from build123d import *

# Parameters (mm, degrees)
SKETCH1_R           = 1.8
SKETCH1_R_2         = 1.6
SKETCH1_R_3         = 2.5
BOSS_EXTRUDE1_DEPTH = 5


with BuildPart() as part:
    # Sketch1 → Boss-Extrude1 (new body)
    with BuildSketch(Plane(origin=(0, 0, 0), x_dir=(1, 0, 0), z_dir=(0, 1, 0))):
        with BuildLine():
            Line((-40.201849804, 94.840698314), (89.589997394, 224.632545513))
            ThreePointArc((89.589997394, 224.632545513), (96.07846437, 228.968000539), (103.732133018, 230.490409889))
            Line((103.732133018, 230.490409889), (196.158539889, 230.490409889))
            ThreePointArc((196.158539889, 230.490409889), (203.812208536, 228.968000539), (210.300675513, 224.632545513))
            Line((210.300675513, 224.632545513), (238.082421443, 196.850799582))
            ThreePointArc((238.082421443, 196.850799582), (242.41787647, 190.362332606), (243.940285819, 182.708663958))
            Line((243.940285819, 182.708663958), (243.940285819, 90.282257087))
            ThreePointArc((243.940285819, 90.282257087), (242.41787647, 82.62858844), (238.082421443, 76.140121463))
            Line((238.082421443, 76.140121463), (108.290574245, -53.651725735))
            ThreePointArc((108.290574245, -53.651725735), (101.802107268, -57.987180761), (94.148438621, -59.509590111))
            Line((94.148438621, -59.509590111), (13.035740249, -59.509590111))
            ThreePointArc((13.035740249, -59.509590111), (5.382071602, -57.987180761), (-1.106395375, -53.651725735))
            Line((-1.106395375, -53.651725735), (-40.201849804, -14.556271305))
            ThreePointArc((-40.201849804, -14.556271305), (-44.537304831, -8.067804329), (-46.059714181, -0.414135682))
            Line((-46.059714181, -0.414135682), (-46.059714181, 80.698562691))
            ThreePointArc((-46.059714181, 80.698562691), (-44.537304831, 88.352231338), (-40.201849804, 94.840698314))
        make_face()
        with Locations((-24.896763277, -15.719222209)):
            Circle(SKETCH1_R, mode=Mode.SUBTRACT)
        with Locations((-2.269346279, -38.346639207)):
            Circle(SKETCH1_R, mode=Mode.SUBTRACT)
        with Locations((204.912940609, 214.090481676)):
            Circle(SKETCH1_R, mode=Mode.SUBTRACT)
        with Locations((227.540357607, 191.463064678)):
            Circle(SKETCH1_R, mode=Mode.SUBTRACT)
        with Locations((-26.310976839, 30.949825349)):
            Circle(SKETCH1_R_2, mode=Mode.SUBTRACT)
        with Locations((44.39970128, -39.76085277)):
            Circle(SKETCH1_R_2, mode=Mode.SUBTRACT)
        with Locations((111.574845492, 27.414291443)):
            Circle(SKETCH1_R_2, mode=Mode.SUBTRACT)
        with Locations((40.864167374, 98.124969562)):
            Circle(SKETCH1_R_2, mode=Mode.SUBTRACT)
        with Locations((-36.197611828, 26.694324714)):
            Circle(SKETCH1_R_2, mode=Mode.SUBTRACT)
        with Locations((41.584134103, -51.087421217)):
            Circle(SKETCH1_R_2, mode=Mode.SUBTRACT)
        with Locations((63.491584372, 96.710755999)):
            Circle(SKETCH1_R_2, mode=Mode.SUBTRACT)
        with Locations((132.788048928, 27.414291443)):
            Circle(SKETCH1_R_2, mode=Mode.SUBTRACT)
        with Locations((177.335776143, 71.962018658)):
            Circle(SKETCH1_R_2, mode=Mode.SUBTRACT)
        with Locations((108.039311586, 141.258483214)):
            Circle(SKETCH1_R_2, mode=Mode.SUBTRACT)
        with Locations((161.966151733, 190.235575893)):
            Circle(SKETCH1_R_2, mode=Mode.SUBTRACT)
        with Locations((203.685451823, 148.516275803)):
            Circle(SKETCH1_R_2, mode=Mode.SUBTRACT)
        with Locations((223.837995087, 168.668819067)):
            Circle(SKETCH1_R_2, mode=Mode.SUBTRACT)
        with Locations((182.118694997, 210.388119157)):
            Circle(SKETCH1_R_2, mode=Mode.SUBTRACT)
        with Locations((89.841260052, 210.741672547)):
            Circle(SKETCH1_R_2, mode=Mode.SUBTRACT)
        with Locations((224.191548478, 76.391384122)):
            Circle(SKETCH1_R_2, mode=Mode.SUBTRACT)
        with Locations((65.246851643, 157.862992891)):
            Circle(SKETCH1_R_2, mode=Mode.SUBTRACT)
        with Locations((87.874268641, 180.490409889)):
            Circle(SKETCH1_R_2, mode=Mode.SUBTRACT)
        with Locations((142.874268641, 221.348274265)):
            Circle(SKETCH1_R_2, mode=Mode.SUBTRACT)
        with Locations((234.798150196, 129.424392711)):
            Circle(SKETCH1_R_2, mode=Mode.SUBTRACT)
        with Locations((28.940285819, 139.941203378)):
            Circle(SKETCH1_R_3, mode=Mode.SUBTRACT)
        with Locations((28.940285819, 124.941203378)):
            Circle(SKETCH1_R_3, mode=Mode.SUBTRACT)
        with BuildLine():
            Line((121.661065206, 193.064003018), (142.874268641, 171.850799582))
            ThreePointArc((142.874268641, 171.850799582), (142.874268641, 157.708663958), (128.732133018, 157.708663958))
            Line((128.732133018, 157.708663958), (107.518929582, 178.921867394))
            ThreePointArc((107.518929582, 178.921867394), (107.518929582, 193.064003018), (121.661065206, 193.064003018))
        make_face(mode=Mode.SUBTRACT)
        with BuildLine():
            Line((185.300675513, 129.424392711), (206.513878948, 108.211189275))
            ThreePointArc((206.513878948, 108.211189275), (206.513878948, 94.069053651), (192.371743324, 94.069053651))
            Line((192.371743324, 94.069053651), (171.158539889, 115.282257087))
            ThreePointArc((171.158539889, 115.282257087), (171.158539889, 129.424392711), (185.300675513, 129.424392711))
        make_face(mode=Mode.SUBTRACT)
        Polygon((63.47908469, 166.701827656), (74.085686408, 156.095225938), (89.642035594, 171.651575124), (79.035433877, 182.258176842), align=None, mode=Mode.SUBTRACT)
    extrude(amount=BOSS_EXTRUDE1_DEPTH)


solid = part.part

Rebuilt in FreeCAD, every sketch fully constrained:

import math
import FreeCAD as App
import Part
import Sketcher

V = App.Vector
Q = App.Units.Quantity


def add_polygon(sketch, points):
    """Adds a closed chain of lines whose ends are joined by coincident constraints."""
    first, n = sketch.GeometryCount, len(points)
    for a, b in zip(points, points[1:] + points[:1]):
        sketch.addGeometry(Part.LineSegment(App.Vector(*a, 0), App.Vector(*b, 0)), False)
    for i in range(n):
        sketch.addConstraint(Sketcher.Constraint("Coincident", first + i, 2, first + (i + 1) % n, 1))

doc = App.newDocument("Part")
body = doc.addObject("PartDesign::Body", "Body")

# Sketch on XZ plane
sketch1 = body.newObject("Sketcher::SketchObject", "Sketch")
sketch1.AttachmentSupport = (doc.getObject("XZ_Plane"), [""])
sketch1.MapMode = "FlatFace"
sketch1.addGeometry(Part.LineSegment(V(89.6, -224.6, 0), V(-40.2, -94.8, 0)), False)  # 0
sketch1.addGeometry(Part.ArcOfCircle(Part.Circle(V(-26.1, -80.7, 0), V(0, 0, 1), 20), math.radians(180), math.radians(225)), False)  # 1
sketch1.addGeometry(Part.LineSegment(V(-46.1, -80.7, 0), V(-46.1, 0.4, 0)), False)  # 2
sketch1.addGeometry(Part.ArcOfCircle(Part.Circle(V(-26.1, 0.4, 0), V(0, 0, 1), 20), math.radians(135), math.radians(180)), False)  # 3
sketch1.addGeometry(Part.LineSegment(V(-40.2, 14.6, 0), V(-1.1, 53.7, 0)), False)  # 4
sketch1.addGeometry(Part.ArcOfCircle(Part.Circle(V(13, 39.5, 0), V(0, 0, 1), 20), math.radians(90), math.radians(135)), False)  # 5
sketch1.addGeometry(Part.LineSegment(V(13, 59.5, 0), V(94.1, 59.5, 0)), False)  # 6
sketch1.addGeometry(Part.ArcOfCircle(Part.Circle(V(94.1, 39.5, 0), V(0, 0, 1), 20), math.radians(45), math.radians(90)), False)  # 7
sketch1.addGeometry(Part.LineSegment(V(108.3, 53.7, 0), V(238.1, -76.1, 0)), False)  # 8
sketch1.addGeometry(Part.ArcOfCircle(Part.Circle(V(223.9, -90.3, 0), V(0, 0, 1), 20), math.radians(0), math.radians(45)), False)  # 9
sketch1.addGeometry(Part.LineSegment(V(243.9, -90.3, 0), V(243.9, -182.7, 0)), False)  # 10
sketch1.addGeometry(Part.ArcOfCircle(Part.Circle(V(223.9, -182.7, 0), V(0, 0, 1), 20), math.radians(-45), math.radians(0)), False)  # 11
sketch1.addGeometry(Part.LineSegment(V(238.1, -196.9, 0), V(210.3, -224.6, 0)), False)  # 12
sketch1.addGeometry(Part.ArcOfCircle(Part.Circle(V(196.2, -210.5, 0), V(0, 0, 1), 20), math.radians(-90), math.radians(-45)), False)  # 13
sketch1.addGeometry(Part.LineSegment(V(196.2, -230.5, 0), V(103.7, -230.5, 0)), False)  # 14
sketch1.addGeometry(Part.ArcOfCircle(Part.Circle(V(103.7, -210.5, 0), V(0, 0, 1), 20), math.radians(-135), math.radians(-90)), False)  # 15
sketch1.addGeometry(Part.Circle(V(224.2, -76.4, 0), V(0, 0, 1), 1.6), False)  # 16
sketch1.addGeometry(Part.Circle(V(177.3, -72, 0), V(0, 0, 1), 1.6), False)  # 17
sketch1.addGeometry(Part.Circle(V(132.8, -27.4, 0), V(0, 0, 1), 1.6), False)  # 18
sketch1.addGeometry(Part.Circle(V(111.6, -27.4, 0), V(0, 0, 1), 1.6), False)  # 19
sketch1.addGeometry(Part.Circle(V(41.6, 51.1, 0), V(0, 0, 1), 1.6), False)  # 20
sketch1.addGeometry(Part.Circle(V(44.4, 39.8, 0), V(0, 0, 1), 1.6), False)  # 21
sketch1.addGeometry(Part.Circle(V(-2.3, 38.3, 0), V(0, 0, 1), 1.8), False)  # 22
sketch1.addGeometry(Part.Circle(V(-24.9, 15.7, 0), V(0, 0, 1), 1.8), False)  # 23
sketch1.addGeometry(Part.Circle(V(-26.3, -30.9, 0), V(0, 0, 1), 1.6), False)  # 24
sketch1.addGeometry(Part.Circle(V(-36.2, -26.7, 0), V(0, 0, 1), 1.6), False)  # 25
sketch1.addGeometry(Part.LineSegment(V(185.3, -129.4, 0), V(206.5, -108.2, 0)), False)  # 26
sketch1.addGeometry(Part.ArcOfCircle(Part.Circle(V(199.4, -101.1, 0), V(0, 0, 1), 10), math.radians(-45), math.radians(135)), False)  # 27
sketch1.addGeometry(Part.LineSegment(V(192.4, -94.1, 0), V(171.2, -115.3, 0)), False)  # 28
sketch1.addGeometry(Part.ArcOfCircle(Part.Circle(V(178.2, -122.4, 0), V(0, 0, 1), 10), math.radians(135), math.radians(315)), False)  # 29
sketch1.addGeometry(Part.Circle(V(234.8, -129.4, 0), V(0, 0, 1), 1.6), False)  # 30
sketch1.addGeometry(Part.Circle(V(203.7, -148.5, 0), V(0, 0, 1), 1.6), False)  # 31
sketch1.addGeometry(Part.Circle(V(108, -141.3, 0), V(0, 0, 1), 1.6), False)  # 32
sketch1.addGeometry(Part.Circle(V(223.8, -168.7, 0), V(0, 0, 1), 1.6), False)  # 33
sketch1.addGeometry(Part.Circle(V(227.5, -191.5, 0), V(0, 0, 1), 1.8), False)  # 34
sketch1.addGeometry(Part.Circle(V(204.9, -214.1, 0), V(0, 0, 1), 1.8), False)  # 35
sketch1.addGeometry(Part.Circle(V(182.1, -210.4, 0), V(0, 0, 1), 1.6), False)  # 36
sketch1.addGeometry(Part.LineSegment(V(121.7, -193.1, 0), V(142.9, -171.9, 0)), False)  # 37
sketch1.addGeometry(Part.ArcOfCircle(Part.Circle(V(135.8, -164.8, 0), V(0, 0, 1), 10), math.radians(-45), math.radians(135)), False)  # 38
sketch1.addGeometry(Part.LineSegment(V(128.7, -157.7, 0), V(107.5, -178.9, 0)), False)  # 39
sketch1.addGeometry(Part.ArcOfCircle(Part.Circle(V(114.6, -186, 0), V(0, 0, 1), 10), math.radians(135), math.radians(315)), False)  # 40
sketch1.addGeometry(Part.Circle(V(162, -190.2, 0), V(0, 0, 1), 1.6), False)  # 41
sketch1.addGeometry(Part.Circle(V(142.9, -221.3, 0), V(0, 0, 1), 1.6), False)  # 42
sketch1.addGeometry(Part.Circle(V(63.5, -96.7, 0), V(0, 0, 1), 1.6), False)  # 43
sketch1.addGeometry(Part.Circle(V(40.9, -98.1, 0), V(0, 0, 1), 1.6), False)  # 44
sketch1.addGeometry(Part.Circle(V(28.9, -124.9, 0), V(0, 0, 1), 2.5), False)  # 45
sketch1.addGeometry(Part.Circle(V(28.9, -139.9, 0), V(0, 0, 1), 2.5), False)  # 46
sketch1.addGeometry(Part.Circle(V(65.2, -157.9, 0), V(0, 0, 1), 1.6), False)  # 47
add_polygon(sketch1, [(63.5, -166.7), (79, -182.3), (89.6, -171.7), (74.1, -156.1)])  # lines 48-51
sketch1.addGeometry(Part.Circle(V(87.9, -180.5, 0), V(0, 0, 1), 1.6), False)  # 52
sketch1.addGeometry(Part.Circle(V(89.8, -210.7, 0), V(0, 0, 1), 1.6), False)  # 53
sketch1.addConstraint([
    Sketcher.Constraint("Tangent", 0, 2, 1, 2),
    Sketcher.Constraint("Tangent", 1, 1, 2, 1),
    Sketcher.Constraint("Tangent", 2, 2, 3, 2),
    Sketcher.Constraint("Tangent", 3, 1, 4, 1),
    Sketcher.Constraint("Tangent", 4, 2, 5, 2),
    Sketcher.Constraint("Tangent", 5, 1, 6, 1),
    Sketcher.Constraint("Tangent", 6, 2, 7, 2),
    Sketcher.Constraint("Tangent", 7, 1, 8, 1),
    Sketcher.Constraint("Tangent", 8, 2, 9, 2),
    Sketcher.Constraint("Tangent", 9, 1, 10, 1),
    Sketcher.Constraint("Tangent", 10, 2, 11, 2),
    Sketcher.Constraint("Tangent", 11, 1, 12, 1),
    Sketcher.Constraint("Tangent", 12, 2, 13, 2),
    Sketcher.Constraint("Tangent", 13, 1, 14, 1),
    Sketcher.Constraint("Tangent", 14, 2, 15, 2),
    Sketcher.Constraint("Tangent", 15, 1, 0, 1),
    Sketcher.Constraint("Tangent", 26, 2, 27, 1),
    Sketcher.Constraint("Tangent", 27, 2, 28, 1),
    Sketcher.Constraint("Tangent", 28, 2, 29, 1),
    Sketcher.Constraint("Tangent", 29, 2, 26, 1),
    Sketcher.Constraint("Tangent", 37, 2, 38, 1),
    Sketcher.Constraint("Tangent", 38, 2, 39, 1),
    Sketcher.Constraint("Tangent", 39, 2, 40, 1),
    Sketcher.Constraint("Tangent", 40, 2, 37, 1),
    Sketcher.Constraint("Vertical", 2),
    Sketcher.Constraint("Horizontal", 6),
    Sketcher.Constraint("Vertical", 10),
    Sketcher.Constraint("Horizontal", 14),
    Sketcher.Constraint("Equal", 1, 3),
    Sketcher.Constraint("Equal", 3, 5),
    Sketcher.Constraint("Equal", 5, 7),
    Sketcher.Constraint("Equal", 7, 9),
    Sketcher.Constraint("Equal", 9, 11),
    Sketcher.Constraint("Equal", 11, 13),
    Sketcher.Constraint("Equal", 13, 15),
    Sketcher.Constraint("Equal", 16, 17),
    Sketcher.Constraint("Equal", 17, 18),
    Sketcher.Constraint("Equal", 18, 19),
    Sketcher.Constraint("Equal", 19, 20),
    Sketcher.Constraint("Equal", 20, 21),
    Sketcher.Constraint("Equal", 22, 23),
    Sketcher.Constraint("Equal", 21, 24),
    Sketcher.Constraint("Equal", 24, 25),
    Sketcher.Constraint("Equal", 27, 29),
    Sketcher.Constraint("Equal", 25, 30),
    Sketcher.Constraint("Equal", 30, 31),
    Sketcher.Constraint("Equal", 31, 32),
    Sketcher.Constraint("Equal", 32, 33),
    Sketcher.Constraint("Equal", 23, 34),
    Sketcher.Constraint("Equal", 34, 35),
    Sketcher.Constraint("Equal", 33, 36),
    Sketcher.Constraint("Equal", 29, 38),
    Sketcher.Constraint("Equal", 38, 40),
    Sketcher.Constraint("Equal", 36, 41),
    Sketcher.Constraint("Equal", 41, 42),
    Sketcher.Constraint("Equal", 42, 43),
    Sketcher.Constraint("Equal", 43, 44),
    Sketcher.Constraint("Equal", 45, 46),
    Sketcher.Constraint("Equal", 44, 47),
    Sketcher.Constraint("Equal", 47, 52),
    Sketcher.Constraint("Equal", 52, 53),
    Sketcher.Constraint("Perpendicular", 0, 4),
    Sketcher.Constraint("Perpendicular", 4, 8),
    Sketcher.Constraint("Perpendicular", 8, 12),
    Sketcher.Constraint("Parallel", 12, 26),
    Sketcher.Constraint("Parallel", 28, 37),
    Sketcher.Constraint("Perpendicular", 39, 48),
    Sketcher.Constraint("Perpendicular", 48, 49),
    Sketcher.Constraint("Perpendicular", 49, 50),
    Sketcher.Constraint("Perpendicular", 50, 51),
    Sketcher.Constraint("Horizontal", 18, 3, 19, 3),
    Sketcher.Constraint("Horizontal", 4, 2, 7, 1),
    Sketcher.Constraint("Horizontal", 30, 3, 29, 2),
    Sketcher.Constraint("Vertical", 45, 3, 46, 3),
    Sketcher.Constraint("Vertical", 42, 3, 37, 2),
    Sketcher.Constraint("Equal", 6, 2),
    Sketcher.Constraint("Equal", 14, 10),
    Sketcher.Constraint("Equal", 28, 37),
    Sketcher.Constraint("Diameter", 45, Q("5 mm")),
    Sketcher.Constraint("Radius", 1, Q("20 mm")),
    Sketcher.Constraint("Radius", 27, Q("10 mm")),
    Sketcher.Constraint("Diameter", 16, Q("3.2 mm")),
    Sketcher.Constraint("Diameter", 22, Q("3.6 mm")),
    Sketcher.Constraint("Distance", 26, Q("30 mm")),
    Sketcher.Constraint("Distance", 48, Q("22 mm")),
    Sketcher.Constraint("Distance", 49, Q("15 mm")),
    Sketcher.Constraint("DistanceX", 6, 1, 6, 2, Q("81.112698 mm")),
    Sketcher.Constraint("DistanceX", -1, 1, 21, 3, Q("44.399701 mm")),
    Sketcher.Constraint("DistanceX", -1, 1, 38, 3, Q("135.803201 mm")),
    Sketcher.Constraint("DistanceY", 0, 2, -1, 1, Q("94.840698 mm")),
    Sketcher.Constraint("DistanceY", 11, 1, -1, 1, Q("196.8508 mm")),
    Sketcher.Constraint("DistanceY", 37, 2, -1, 1, Q("171.8508 mm")),
    Sketcher.Constraint("Distance", 0, Q("183.553391 mm")),
    Sketcher.Constraint("Distance", 4, Q("55.289322 mm")),
    Sketcher.Constraint("DistanceX", -1, 1, 5, 3, Q("13.03574 mm")),
    Sketcher.Constraint("DistanceX", -1, 1, 16, 3, Q("224.191548 mm")),
    Sketcher.Constraint("DistanceY", 17, 3, -1, 1, Q("71.962019 mm")),
    Sketcher.Constraint("DistanceX", -1, 1, 18, 3, Q("132.788049 mm")),
    Sketcher.Constraint("DistanceY", 18, 3, -1, 1, Q("27.414291 mm")),
    Sketcher.Constraint("DistanceY", -1, 1, 20, 3, Q("51.087421 mm")),
    Sketcher.Constraint("DistanceY", -1, 1, 22, 3, Q("38.346639 mm")),
    Sketcher.Constraint("DistanceX", 25, 3, -1, 1, Q("36.197612 mm")),
    Sketcher.Constraint("DistanceX", -1, 1, 27, 3, Q("199.442811 mm")),
    Sketcher.Constraint("DistanceY", 27, 3, -1, 1, Q("101.140121 mm")),
    Sketcher.Constraint("DistanceX", -1, 1, 30, 3, Q("234.79815 mm")),
    Sketcher.Constraint("DistanceX", -1, 1, 31, 3, Q("203.685452 mm")),
    Sketcher.Constraint("DistanceX", -1, 1, 32, 3, Q("108.039312 mm")),
    Sketcher.Constraint("DistanceY", 33, 3, -1, 1, Q("168.668819 mm")),
    Sketcher.Constraint("DistanceX", -1, 1, 35, 3, Q("204.912941 mm")),
    Sketcher.Constraint("DistanceY", 35, 3, -1, 1, Q("214.090482 mm")),
    Sketcher.Constraint("DistanceY", 36, 3, -1, 1, Q("210.388119 mm")),
    Sketcher.Constraint("DistanceX", -1, 1, 41, 3, Q("161.966152 mm")),
    Sketcher.Constraint("DistanceY", 44, 3, -1, 1, Q("98.12497 mm")),
    Sketcher.Constraint("DistanceX", -1, 1, 47, 3, Q("65.246852 mm")),
    Sketcher.Constraint("DistanceX", -1, 1, 52, 3, Q("87.874269 mm")),
    Sketcher.Constraint("DistanceY", 52, 3, -1, 1, Q("180.49041 mm")),
    Sketcher.Constraint("DistanceX", -1, 1, 53, 3, Q("89.84126 mm")),
    Sketcher.Constraint("DistanceY", 16, 3, -1, 1, Q("76.391384 mm")),
    Sketcher.Constraint("DistanceX", -1, 1, 17, 3, Q("177.335776 mm")),
    Sketcher.Constraint("DistanceX", -1, 1, 19, 3, Q("111.574845 mm")),
    Sketcher.Constraint("DistanceX", -1, 1, 20, 3, Q("41.584134 mm")),
    Sketcher.Constraint("DistanceY", -1, 1, 21, 3, Q("39.760853 mm")),
    Sketcher.Constraint("DistanceX", 22, 3, -1, 1, Q("2.269346 mm")),
    Sketcher.Constraint("DistanceX", 23, 3, -1, 1, Q("24.896763 mm")),
    Sketcher.Constraint("DistanceY", -1, 1, 23, 3, Q("15.719222 mm")),
    Sketcher.Constraint("DistanceX", 24, 3, -1, 1, Q("26.310977 mm")),
    Sketcher.Constraint("DistanceY", 24, 3, -1, 1, Q("30.949825 mm")),
    Sketcher.Constraint("DistanceY", 25, 3, -1, 1, Q("26.694325 mm")),
    Sketcher.Constraint("DistanceY", 31, 3, -1, 1, Q("148.516276 mm")),
    Sketcher.Constraint("DistanceY", 32, 3, -1, 1, Q("141.258483 mm")),
    Sketcher.Constraint("DistanceX", -1, 1, 33, 3, Q("223.837995 mm")),
    Sketcher.Constraint("DistanceX", -1, 1, 34, 3, Q("227.540358 mm")),
    Sketcher.Constraint("DistanceY", 34, 3, -1, 1, Q("191.463065 mm")),
    Sketcher.Constraint("DistanceX", -1, 1, 36, 3, Q("182.118695 mm")),
    Sketcher.Constraint("DistanceY", 41, 3, -1, 1, Q("190.235576 mm")),
    Sketcher.Constraint("DistanceY", 42, 3, -1, 1, Q("221.348274 mm")),
    Sketcher.Constraint("DistanceX", -1, 1, 43, 3, Q("63.491584 mm")),
    Sketcher.Constraint("DistanceY", 43, 3, -1, 1, Q("96.710756 mm")),
    Sketcher.Constraint("DistanceX", -1, 1, 44, 3, Q("40.864167 mm")),
    Sketcher.Constraint("DistanceX", -1, 1, 45, 3, Q("28.940286 mm")),
    Sketcher.Constraint("DistanceY", 45, 3, -1, 1, Q("124.941203 mm")),
    Sketcher.Constraint("DistanceY", 46, 3, -1, 1, Q("139.941203 mm")),
    Sketcher.Constraint("DistanceY", 47, 3, -1, 1, Q("157.862993 mm")),
    Sketcher.Constraint("DistanceY", 53, 3, -1, 1, Q("210.741673 mm")),
    Sketcher.Constraint("DistanceX", -1, 1, 48, 2, Q("79.035434 mm")),
    Sketcher.Constraint("DistanceY", 48, 2, -1, 1, Q("182.258177 mm")),
])
pad1 = body.newObject("PartDesign::Pad", "Pad")
pad1.Profile = sketch1
pad1.Length = 5
pad1.Reversed = True

doc.recompute()
